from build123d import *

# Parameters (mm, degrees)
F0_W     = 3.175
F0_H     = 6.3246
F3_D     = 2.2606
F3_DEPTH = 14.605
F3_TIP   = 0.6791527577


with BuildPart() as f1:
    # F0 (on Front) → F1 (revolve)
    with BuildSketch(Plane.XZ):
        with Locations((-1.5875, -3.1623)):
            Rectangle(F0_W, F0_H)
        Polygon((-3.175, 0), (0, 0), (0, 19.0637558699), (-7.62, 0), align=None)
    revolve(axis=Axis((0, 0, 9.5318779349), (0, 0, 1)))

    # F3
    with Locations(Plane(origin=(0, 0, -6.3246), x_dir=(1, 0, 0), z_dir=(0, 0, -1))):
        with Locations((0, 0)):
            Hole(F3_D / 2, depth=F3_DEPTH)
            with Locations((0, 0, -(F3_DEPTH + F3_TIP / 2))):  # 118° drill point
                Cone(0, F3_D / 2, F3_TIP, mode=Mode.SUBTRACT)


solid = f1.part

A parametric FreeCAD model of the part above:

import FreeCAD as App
import Part
import Sketcher
from FreeCAD import Vector
Q = App.Units.Quantity


def add_polygon(sketch, points):
    """Adds a closed chain of lines whose ends are joined by coincident constraints."""
    first, n = sketch.GeometryCount, len(points)
    for a, b in zip(points, points[1:] + points[:1]):
        sketch.addGeometry(Part.LineSegment(App.Vector(*a, 0), App.Vector(*b, 0)), False)
    for i in range(n):
        sketch.addConstraint(Sketcher.Constraint("Coincident", first + i, 2, first + (i + 1) % n, 1))

doc = App.newDocument("Part")
body = doc.addObject("PartDesign::Body", "Body")

# Sketch on XZ plane
sketch1 = doc.addObject("Sketcher::SketchObject", "Sketch")
body.addObject(sketch1)
sketch1.AttachmentSupport = (doc.XZ_Plane, [""])
sketch1.MapMode = "FlatFace"
add_polygon(sketch1, [(-3.2, 0), (-3.2, -6.3), (0, -6.3), (0, 19.1), (-7.6, 0)])  # lines 0-4
sketch1.addConstraint(Sketcher.Constraint("Vertical", 0))
sketch1.addConstraint(Sketcher.Constraint("Horizontal", 1))
sketch1.addConstraint(Sketcher.Constraint("Vertical", 2))
sketch1.addConstraint(Sketcher.Constraint("Horizontal", 4))
sketch1.addConstraint(Sketcher.Constraint("PointOnObject", 1, 2, -2))
sketch1.addConstraint(Sketcher.Constraint("PointOnObject", 3, 2, -1))
sketch1.addConstraint(Sketcher.Constraint("DistanceX", 3, 2, -1, 1, Q("0.3 in")))
sketch1.addConstraint(Sketcher.Constraint("DistanceX", 1, 1, 1, 2, Q("0.125 in")))
sketch1.addConstraint(Sketcher.Constraint("DistanceY", 0, 2, 0, 1, Q("0.249 in")))
sketch1.addConstraint(Sketcher.Constraint("Distance", 3, Q("20.530251 mm")))
revolution = doc.addObject("PartDesign::Revolution", "Revolution")
body.addObject(revolution)
revolution.Profile = sketch1
revolution.ReferenceAxis = (sketch1, ["V_Axis"])
revolution.Angle = 360

# Sketch on XY plane
sketch2 = doc.addObject("Sketcher::SketchObject", "Sketch001")
body.addObject(sketch2)
sketch2.AttachmentSupport = (doc.XY_Plane, [""])
sketch2.MapMode = "FlatFace"
sketch2.AttachmentOffset = App.Placement(Vector(0, 0, -0.249 * 25.4), App.Rotation())
sketch2.addGeometry(Part.Circle(Vector(0, 0, 0), Vector(0, 0, 1), 1.1), False)
sketch2.addConstraint(Sketcher.Constraint("Coincident", 0, 3, -1, 1))
sketch2.addConstraint(Sketcher.Constraint("Diameter", 0, Q("0.089 in")))
doc.recompute()
hole = doc.addObject("PartDesign::Hole", "Hole")
body.addObject(hole)
hole.Profile = sketch2
hole.ThreadType = "None"
hole.Diameter = Q("0.089 in")
hole.DepthType = "Dimension"
hole.Depth = Q("0.575 in")
hole.DrillPoint = "Angled"
hole.DrillPointAngle = 118
hole.Reversed = True

doc.recompute()
